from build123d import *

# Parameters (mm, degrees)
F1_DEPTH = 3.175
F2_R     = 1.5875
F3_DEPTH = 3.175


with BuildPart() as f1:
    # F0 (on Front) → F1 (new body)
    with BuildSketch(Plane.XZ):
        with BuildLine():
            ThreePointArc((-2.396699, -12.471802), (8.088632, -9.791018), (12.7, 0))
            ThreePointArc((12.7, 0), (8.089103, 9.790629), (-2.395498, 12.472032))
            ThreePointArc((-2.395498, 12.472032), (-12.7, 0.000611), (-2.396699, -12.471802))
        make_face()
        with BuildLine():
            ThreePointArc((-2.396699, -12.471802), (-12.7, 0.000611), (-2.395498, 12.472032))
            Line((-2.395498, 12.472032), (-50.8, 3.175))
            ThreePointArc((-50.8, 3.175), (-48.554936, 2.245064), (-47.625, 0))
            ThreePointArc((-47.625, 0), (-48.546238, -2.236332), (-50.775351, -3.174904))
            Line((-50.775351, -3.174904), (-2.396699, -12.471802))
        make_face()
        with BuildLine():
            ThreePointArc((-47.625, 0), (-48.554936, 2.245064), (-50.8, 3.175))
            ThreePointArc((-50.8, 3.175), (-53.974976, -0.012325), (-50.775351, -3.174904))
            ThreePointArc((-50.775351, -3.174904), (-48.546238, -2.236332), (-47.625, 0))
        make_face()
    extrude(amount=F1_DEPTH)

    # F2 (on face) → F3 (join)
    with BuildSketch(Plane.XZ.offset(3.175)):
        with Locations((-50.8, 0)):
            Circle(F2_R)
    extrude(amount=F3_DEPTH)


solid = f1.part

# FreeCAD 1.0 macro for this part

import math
import FreeCAD as App
import Part
import Sketcher
Q = App.Units.Quantity

doc = App.newDocument("Part")
body = doc.addObject("PartDesign::Body", "Body")

# Sketch on XZ plane
sketch1 = body.newObject("Sketcher::SketchObject", "Sketch")
sketch1.AttachmentSupport = (doc.getObject("XZ_Plane"), [""])
sketch1.MapMode = "FlatFace"
sketch1.addGeometry([
    Part.ArcOfCircle(Part.Circle(App.Vector(-0.000001, 0, 0), App.Vector(0, 0, 1), 12.700001), math.radians(-100.877885), math.radians(-0.000001)),  # 0
    Part.ArcOfCircle(Part.Circle(App.Vector(0.000001, 0, 0), App.Vector(0, 0, 1), 12.699999), math.radians(-0.000002), math.radians(100.872374)),  # 1
    Part.LineSegment(App.Vector(-2.395498, 12.472032, 0), App.Vector(-50.8, 3.175, 0)),  # 2
    Part.ArcOfCircle(Part.Circle(App.Vector(-50.8, 0, 0), App.Vector(0, 0, 1), 3.175), math.radians(89.999999), math.radians(270.44482)),  # 3
    Part.LineSegment(App.Vector(-50.775351, -3.174904, 0), App.Vector(-2.396699, -12.471802, 0)),  # 4
], False)
sketch1.addConstraint([
    Sketcher.Constraint("Tangent", 0, 2, 1, 1),
    Sketcher.Constraint("Tangent", 1, 2, 2, 1),
    Sketcher.Constraint("Coincident", 2, 2, 3, 1),
    Sketcher.Constraint("Coincident", 3, 2, 4, 1),
    Sketcher.Constraint("Tangent", 4, 2, 0, 1),
    Sketcher.Constraint("Coincident", 0, 3, -1, 1),
    Sketcher.Constraint("Equal", 0, 1),
    Sketcher.Constraint("PointOnObject", 3, 3, -1),
    Sketcher.Constraint("PointOnObject", 0, 2, -1),
    Sketcher.Constraint("Vertical", 3, 3, 2, 2),
    Sketcher.Constraint("Radius", 0, Q("0.5 in")),
    Sketcher.Constraint("DistanceX", 3, 3, -1, 1, Q("2 in")),
    Sketcher.Constraint("Radius", 3, Q("0.125 in")),
    Sketcher.Constraint("DistanceX", 4, 2, -1, 1, 2.396699),
])
pad1 = body.newObject("PartDesign::Pad", "Pad")
pad1.Profile = sketch1
pad1.Length = Q("0.125 in")

# Sketch on XZ plane
sketch2 = body.newObject("Sketcher::SketchObject", "Sketch001")
sketch2.AttachmentSupport = (doc.getObject("XZ_Plane"), [""])
sketch2.MapMode = "FlatFace"
sketch2.AttachmentOffset = App.Placement(App.Vector(0, 0, 0.125 * 25.4), App.Rotation())
sketch2.addGeometry(Part.Circle(App.Vector(-50.8, 0, 0), App.Vector(0, 0, 1), 1.5875), False)
sketch2.addConstraint([
    Sketcher.Constraint("PointOnObject", 0, 3, -1),
    Sketcher.Constraint("Diameter", 0, Q("0.125 in")),
    Sketcher.Constraint("DistanceX", 0, 3, -1, 1, Q("2 in")),
])
pad2 = body.newObject("PartDesign::Pad", "Pad001")
pad2.Profile = sketch2
pad2.Length = Q("0.125 in")

doc.recompute()
